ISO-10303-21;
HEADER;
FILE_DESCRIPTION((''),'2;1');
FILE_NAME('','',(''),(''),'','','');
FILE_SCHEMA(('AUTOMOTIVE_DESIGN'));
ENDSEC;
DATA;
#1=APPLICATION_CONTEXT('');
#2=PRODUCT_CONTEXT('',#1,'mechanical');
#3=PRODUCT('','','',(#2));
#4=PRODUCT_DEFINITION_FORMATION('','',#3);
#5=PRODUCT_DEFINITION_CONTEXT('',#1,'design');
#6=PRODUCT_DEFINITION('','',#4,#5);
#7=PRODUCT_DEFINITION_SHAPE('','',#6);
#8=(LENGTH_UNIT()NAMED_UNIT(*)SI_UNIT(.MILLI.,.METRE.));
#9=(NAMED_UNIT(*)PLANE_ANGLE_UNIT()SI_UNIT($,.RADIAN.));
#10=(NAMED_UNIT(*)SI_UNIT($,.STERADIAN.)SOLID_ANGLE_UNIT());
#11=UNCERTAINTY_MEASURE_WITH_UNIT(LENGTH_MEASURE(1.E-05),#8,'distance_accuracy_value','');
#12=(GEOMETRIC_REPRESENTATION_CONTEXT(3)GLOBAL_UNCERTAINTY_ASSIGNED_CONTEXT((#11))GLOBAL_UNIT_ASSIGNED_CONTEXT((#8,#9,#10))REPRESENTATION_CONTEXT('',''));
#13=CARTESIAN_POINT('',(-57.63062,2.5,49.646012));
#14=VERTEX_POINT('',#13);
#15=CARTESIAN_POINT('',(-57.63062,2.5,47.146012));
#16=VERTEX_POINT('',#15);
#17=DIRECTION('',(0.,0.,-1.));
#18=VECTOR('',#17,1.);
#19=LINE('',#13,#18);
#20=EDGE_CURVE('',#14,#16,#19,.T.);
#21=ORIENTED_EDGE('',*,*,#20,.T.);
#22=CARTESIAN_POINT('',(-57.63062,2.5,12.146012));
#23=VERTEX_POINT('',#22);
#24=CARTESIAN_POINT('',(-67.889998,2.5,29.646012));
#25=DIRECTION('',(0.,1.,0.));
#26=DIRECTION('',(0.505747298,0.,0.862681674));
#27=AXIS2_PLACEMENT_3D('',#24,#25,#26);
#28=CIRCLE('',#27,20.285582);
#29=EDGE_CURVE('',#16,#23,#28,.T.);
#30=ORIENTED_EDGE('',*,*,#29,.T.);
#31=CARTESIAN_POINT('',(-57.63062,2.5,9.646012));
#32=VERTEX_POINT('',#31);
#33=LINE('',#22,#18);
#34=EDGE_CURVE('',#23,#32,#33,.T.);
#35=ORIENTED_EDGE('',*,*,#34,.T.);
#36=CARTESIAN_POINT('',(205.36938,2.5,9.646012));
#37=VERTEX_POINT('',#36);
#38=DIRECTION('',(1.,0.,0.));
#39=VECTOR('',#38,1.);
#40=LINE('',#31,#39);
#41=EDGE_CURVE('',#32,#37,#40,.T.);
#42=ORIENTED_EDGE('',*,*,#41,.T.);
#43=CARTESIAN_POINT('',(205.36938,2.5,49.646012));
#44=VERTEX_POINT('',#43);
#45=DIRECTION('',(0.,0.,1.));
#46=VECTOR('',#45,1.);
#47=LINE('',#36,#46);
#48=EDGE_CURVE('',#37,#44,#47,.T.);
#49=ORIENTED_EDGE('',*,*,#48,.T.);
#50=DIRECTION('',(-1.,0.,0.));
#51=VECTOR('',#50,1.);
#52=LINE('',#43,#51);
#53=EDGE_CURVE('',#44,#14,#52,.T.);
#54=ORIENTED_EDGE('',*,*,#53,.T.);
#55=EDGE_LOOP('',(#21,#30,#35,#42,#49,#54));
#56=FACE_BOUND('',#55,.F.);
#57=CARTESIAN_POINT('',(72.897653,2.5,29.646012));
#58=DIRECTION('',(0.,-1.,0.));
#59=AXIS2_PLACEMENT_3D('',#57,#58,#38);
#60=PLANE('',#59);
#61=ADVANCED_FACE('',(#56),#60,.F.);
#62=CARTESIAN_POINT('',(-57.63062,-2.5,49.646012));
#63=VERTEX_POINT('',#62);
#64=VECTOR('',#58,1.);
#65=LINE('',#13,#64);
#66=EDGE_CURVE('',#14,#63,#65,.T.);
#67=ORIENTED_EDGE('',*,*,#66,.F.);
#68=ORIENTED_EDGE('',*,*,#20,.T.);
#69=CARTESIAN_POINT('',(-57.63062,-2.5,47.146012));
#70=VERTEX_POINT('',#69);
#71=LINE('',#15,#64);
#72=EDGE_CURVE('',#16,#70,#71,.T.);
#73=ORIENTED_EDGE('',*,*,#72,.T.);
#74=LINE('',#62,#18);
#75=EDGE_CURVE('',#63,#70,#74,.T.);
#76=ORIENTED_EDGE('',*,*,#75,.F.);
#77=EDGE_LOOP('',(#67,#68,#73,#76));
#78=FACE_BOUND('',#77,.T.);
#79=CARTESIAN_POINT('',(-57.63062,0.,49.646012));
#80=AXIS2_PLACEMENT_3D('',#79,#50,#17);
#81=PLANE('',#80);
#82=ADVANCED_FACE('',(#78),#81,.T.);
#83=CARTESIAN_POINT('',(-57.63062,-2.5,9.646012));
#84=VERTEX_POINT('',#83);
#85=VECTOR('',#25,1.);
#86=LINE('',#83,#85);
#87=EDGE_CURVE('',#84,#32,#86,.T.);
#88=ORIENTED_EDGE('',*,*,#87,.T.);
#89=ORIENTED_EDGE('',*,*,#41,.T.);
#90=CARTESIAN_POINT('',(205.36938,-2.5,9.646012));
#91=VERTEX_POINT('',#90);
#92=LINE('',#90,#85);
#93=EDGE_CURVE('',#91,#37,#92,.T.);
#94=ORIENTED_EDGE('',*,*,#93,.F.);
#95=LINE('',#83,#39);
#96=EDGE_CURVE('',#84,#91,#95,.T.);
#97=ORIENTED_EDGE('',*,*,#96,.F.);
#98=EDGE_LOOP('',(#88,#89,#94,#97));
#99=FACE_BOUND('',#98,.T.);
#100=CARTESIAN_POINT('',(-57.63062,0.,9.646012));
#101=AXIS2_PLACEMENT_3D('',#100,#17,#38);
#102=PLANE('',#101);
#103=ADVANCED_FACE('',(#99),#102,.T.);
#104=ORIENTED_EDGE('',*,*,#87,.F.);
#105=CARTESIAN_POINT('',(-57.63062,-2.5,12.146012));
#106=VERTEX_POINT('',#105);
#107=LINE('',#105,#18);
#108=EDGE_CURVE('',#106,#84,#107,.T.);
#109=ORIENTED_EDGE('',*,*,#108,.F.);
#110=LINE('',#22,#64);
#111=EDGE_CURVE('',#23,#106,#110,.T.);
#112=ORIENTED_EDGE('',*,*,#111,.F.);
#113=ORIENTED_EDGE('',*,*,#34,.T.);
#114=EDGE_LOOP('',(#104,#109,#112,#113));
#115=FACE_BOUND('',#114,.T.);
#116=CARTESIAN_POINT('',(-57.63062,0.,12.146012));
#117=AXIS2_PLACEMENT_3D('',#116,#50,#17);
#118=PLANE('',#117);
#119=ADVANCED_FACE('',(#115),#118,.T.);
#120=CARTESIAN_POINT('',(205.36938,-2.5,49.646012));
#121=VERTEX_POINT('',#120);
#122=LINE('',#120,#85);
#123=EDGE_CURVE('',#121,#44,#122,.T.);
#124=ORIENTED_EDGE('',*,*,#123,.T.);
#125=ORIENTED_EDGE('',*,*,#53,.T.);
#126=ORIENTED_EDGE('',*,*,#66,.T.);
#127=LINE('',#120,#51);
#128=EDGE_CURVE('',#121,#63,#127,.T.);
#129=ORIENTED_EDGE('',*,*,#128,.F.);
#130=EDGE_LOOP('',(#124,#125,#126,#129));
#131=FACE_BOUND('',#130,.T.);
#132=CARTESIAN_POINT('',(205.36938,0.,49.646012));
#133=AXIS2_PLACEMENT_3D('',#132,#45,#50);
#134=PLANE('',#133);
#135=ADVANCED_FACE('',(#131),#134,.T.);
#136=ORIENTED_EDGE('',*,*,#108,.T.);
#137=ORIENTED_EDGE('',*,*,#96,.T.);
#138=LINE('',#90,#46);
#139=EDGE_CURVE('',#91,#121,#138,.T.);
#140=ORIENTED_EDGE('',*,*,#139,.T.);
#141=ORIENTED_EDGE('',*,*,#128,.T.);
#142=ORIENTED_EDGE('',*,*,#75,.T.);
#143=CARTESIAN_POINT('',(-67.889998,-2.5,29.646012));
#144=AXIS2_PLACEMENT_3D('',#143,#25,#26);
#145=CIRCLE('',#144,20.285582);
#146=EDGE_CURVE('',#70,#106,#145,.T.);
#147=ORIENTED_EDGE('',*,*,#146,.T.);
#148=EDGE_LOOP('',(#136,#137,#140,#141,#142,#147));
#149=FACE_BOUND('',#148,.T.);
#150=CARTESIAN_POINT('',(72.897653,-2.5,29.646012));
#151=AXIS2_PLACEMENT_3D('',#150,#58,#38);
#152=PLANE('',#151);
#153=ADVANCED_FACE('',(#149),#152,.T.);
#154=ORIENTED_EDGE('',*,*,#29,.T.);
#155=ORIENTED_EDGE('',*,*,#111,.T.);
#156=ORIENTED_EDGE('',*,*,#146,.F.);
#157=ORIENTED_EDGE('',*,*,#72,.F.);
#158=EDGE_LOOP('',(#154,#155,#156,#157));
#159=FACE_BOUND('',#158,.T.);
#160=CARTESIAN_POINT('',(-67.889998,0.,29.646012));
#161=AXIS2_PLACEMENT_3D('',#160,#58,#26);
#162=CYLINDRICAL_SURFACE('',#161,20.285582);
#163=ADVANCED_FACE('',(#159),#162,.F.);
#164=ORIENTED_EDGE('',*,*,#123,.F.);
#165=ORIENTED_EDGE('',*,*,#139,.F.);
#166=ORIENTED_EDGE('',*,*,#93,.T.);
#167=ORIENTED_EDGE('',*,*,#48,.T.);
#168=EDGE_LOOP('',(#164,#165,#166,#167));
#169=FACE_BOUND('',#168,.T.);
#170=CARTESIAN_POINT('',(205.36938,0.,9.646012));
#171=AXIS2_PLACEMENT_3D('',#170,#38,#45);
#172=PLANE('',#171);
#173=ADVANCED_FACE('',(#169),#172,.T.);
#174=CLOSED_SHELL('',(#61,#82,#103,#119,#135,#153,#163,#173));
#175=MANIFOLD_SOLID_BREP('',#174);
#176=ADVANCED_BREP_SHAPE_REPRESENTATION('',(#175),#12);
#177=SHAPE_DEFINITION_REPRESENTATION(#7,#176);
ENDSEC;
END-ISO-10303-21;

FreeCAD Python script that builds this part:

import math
import FreeCAD as App
import Part
import Sketcher

V = App.Vector

doc = App.newDocument("Part")
body = doc.addObject("PartDesign::Body", "Body")

# Sketch on XZ plane
sketch1 = doc.addObject("Sketcher::SketchObject", "Sketch")
body.addObject(sketch1)
sketch1.AttachmentSupport = (doc.XZ_Plane, [""])
sketch1.MapMode = "FlatFace"
sketch1.addGeometry(Part.LineSegment(V(205.36938, 49.646012, 0), V(-57.63062, 49.646012, 0)), False)
sketch1.addGeometry(Part.LineSegment(V(-57.63062, 49.646012, 0), V(-57.63062, 47.146012, 0)), False)
sketch1.addGeometry(Part.ArcOfCircle(Part.Circle(V(-67.889998, 29.646012, 0), V(0, 0, 1), 20.285582), math.radians(-59.619028), math.radians(59.619028)), False)
sketch1.addGeometry(Part.LineSegment(V(-57.63062, 12.146012, 0), V(-57.63062, 9.646012, 0)), False)
sketch1.addGeometry(Part.LineSegment(V(-57.63062, 9.646012, 0), V(205.36938, 9.646012, 0)), False)
sketch1.addGeometry(Part.LineSegment(V(205.36938, 9.646012, 0), V(205.36938, 49.646012, 0)), False)
sketch1.addConstraint(Sketcher.Constraint("Coincident", 0, 2, 1, 1))
sketch1.addConstraint(Sketcher.Constraint("Coincident", 1, 2, 2, 2))
sketch1.addConstraint(Sketcher.Constraint("Coincident", 2, 1, 3, 1))
sketch1.addConstraint(Sketcher.Constraint("Coincident", 3, 2, 4, 1))
sketch1.addConstraint(Sketcher.Constraint("Coincident", 4, 2, 5, 1))
sketch1.addConstraint(Sketcher.Constraint("Coincident", 5, 2, 0, 1))
sketch1.addConstraint(Sketcher.Constraint("Horizontal", 0))
sketch1.addConstraint(Sketcher.Constraint("Vertical", 1))
sketch1.addConstraint(Sketcher.Constraint("Vertical", 3))
sketch1.addConstraint(Sketcher.Constraint("Horizontal", 4))
sketch1.addConstraint(Sketcher.Constraint("Vertical", 5))
sketch1.addConstraint(Sketcher.Constraint("Vertical", 1, 2, 2, 1))
sketch1.addConstraint(Sketcher.Constraint("Equal", 1, 3))
sketch1.addConstraint(Sketcher.Constraint("DistanceX", 0, 2, 0, 1, 263.0))
sketch1.addConstraint(Sketcher.Constraint("DistanceY", 5, 1, 5, 2, 40.0))
sketch1.addConstraint(Sketcher.Constraint("DistanceY", 1, 2, 1, 1, 2.5))
sketch1.addConstraint(Sketcher.Constraint("DistanceX", 2, 3, -1, 1, 67.889998))
sketch1.addConstraint(Sketcher.Constraint("Radius", 2, 20.285582))
sketch1.addConstraint(Sketcher.Constraint("DistanceY", -1, 1, 2, 3, 29.646012))
pad1 = doc.addObject("PartDesign::Pad", "Pad")
body.addObject(pad1)
pad1.Profile = sketch1
pad1.Length = 5
pad1.Midplane = True

doc.recompute()
